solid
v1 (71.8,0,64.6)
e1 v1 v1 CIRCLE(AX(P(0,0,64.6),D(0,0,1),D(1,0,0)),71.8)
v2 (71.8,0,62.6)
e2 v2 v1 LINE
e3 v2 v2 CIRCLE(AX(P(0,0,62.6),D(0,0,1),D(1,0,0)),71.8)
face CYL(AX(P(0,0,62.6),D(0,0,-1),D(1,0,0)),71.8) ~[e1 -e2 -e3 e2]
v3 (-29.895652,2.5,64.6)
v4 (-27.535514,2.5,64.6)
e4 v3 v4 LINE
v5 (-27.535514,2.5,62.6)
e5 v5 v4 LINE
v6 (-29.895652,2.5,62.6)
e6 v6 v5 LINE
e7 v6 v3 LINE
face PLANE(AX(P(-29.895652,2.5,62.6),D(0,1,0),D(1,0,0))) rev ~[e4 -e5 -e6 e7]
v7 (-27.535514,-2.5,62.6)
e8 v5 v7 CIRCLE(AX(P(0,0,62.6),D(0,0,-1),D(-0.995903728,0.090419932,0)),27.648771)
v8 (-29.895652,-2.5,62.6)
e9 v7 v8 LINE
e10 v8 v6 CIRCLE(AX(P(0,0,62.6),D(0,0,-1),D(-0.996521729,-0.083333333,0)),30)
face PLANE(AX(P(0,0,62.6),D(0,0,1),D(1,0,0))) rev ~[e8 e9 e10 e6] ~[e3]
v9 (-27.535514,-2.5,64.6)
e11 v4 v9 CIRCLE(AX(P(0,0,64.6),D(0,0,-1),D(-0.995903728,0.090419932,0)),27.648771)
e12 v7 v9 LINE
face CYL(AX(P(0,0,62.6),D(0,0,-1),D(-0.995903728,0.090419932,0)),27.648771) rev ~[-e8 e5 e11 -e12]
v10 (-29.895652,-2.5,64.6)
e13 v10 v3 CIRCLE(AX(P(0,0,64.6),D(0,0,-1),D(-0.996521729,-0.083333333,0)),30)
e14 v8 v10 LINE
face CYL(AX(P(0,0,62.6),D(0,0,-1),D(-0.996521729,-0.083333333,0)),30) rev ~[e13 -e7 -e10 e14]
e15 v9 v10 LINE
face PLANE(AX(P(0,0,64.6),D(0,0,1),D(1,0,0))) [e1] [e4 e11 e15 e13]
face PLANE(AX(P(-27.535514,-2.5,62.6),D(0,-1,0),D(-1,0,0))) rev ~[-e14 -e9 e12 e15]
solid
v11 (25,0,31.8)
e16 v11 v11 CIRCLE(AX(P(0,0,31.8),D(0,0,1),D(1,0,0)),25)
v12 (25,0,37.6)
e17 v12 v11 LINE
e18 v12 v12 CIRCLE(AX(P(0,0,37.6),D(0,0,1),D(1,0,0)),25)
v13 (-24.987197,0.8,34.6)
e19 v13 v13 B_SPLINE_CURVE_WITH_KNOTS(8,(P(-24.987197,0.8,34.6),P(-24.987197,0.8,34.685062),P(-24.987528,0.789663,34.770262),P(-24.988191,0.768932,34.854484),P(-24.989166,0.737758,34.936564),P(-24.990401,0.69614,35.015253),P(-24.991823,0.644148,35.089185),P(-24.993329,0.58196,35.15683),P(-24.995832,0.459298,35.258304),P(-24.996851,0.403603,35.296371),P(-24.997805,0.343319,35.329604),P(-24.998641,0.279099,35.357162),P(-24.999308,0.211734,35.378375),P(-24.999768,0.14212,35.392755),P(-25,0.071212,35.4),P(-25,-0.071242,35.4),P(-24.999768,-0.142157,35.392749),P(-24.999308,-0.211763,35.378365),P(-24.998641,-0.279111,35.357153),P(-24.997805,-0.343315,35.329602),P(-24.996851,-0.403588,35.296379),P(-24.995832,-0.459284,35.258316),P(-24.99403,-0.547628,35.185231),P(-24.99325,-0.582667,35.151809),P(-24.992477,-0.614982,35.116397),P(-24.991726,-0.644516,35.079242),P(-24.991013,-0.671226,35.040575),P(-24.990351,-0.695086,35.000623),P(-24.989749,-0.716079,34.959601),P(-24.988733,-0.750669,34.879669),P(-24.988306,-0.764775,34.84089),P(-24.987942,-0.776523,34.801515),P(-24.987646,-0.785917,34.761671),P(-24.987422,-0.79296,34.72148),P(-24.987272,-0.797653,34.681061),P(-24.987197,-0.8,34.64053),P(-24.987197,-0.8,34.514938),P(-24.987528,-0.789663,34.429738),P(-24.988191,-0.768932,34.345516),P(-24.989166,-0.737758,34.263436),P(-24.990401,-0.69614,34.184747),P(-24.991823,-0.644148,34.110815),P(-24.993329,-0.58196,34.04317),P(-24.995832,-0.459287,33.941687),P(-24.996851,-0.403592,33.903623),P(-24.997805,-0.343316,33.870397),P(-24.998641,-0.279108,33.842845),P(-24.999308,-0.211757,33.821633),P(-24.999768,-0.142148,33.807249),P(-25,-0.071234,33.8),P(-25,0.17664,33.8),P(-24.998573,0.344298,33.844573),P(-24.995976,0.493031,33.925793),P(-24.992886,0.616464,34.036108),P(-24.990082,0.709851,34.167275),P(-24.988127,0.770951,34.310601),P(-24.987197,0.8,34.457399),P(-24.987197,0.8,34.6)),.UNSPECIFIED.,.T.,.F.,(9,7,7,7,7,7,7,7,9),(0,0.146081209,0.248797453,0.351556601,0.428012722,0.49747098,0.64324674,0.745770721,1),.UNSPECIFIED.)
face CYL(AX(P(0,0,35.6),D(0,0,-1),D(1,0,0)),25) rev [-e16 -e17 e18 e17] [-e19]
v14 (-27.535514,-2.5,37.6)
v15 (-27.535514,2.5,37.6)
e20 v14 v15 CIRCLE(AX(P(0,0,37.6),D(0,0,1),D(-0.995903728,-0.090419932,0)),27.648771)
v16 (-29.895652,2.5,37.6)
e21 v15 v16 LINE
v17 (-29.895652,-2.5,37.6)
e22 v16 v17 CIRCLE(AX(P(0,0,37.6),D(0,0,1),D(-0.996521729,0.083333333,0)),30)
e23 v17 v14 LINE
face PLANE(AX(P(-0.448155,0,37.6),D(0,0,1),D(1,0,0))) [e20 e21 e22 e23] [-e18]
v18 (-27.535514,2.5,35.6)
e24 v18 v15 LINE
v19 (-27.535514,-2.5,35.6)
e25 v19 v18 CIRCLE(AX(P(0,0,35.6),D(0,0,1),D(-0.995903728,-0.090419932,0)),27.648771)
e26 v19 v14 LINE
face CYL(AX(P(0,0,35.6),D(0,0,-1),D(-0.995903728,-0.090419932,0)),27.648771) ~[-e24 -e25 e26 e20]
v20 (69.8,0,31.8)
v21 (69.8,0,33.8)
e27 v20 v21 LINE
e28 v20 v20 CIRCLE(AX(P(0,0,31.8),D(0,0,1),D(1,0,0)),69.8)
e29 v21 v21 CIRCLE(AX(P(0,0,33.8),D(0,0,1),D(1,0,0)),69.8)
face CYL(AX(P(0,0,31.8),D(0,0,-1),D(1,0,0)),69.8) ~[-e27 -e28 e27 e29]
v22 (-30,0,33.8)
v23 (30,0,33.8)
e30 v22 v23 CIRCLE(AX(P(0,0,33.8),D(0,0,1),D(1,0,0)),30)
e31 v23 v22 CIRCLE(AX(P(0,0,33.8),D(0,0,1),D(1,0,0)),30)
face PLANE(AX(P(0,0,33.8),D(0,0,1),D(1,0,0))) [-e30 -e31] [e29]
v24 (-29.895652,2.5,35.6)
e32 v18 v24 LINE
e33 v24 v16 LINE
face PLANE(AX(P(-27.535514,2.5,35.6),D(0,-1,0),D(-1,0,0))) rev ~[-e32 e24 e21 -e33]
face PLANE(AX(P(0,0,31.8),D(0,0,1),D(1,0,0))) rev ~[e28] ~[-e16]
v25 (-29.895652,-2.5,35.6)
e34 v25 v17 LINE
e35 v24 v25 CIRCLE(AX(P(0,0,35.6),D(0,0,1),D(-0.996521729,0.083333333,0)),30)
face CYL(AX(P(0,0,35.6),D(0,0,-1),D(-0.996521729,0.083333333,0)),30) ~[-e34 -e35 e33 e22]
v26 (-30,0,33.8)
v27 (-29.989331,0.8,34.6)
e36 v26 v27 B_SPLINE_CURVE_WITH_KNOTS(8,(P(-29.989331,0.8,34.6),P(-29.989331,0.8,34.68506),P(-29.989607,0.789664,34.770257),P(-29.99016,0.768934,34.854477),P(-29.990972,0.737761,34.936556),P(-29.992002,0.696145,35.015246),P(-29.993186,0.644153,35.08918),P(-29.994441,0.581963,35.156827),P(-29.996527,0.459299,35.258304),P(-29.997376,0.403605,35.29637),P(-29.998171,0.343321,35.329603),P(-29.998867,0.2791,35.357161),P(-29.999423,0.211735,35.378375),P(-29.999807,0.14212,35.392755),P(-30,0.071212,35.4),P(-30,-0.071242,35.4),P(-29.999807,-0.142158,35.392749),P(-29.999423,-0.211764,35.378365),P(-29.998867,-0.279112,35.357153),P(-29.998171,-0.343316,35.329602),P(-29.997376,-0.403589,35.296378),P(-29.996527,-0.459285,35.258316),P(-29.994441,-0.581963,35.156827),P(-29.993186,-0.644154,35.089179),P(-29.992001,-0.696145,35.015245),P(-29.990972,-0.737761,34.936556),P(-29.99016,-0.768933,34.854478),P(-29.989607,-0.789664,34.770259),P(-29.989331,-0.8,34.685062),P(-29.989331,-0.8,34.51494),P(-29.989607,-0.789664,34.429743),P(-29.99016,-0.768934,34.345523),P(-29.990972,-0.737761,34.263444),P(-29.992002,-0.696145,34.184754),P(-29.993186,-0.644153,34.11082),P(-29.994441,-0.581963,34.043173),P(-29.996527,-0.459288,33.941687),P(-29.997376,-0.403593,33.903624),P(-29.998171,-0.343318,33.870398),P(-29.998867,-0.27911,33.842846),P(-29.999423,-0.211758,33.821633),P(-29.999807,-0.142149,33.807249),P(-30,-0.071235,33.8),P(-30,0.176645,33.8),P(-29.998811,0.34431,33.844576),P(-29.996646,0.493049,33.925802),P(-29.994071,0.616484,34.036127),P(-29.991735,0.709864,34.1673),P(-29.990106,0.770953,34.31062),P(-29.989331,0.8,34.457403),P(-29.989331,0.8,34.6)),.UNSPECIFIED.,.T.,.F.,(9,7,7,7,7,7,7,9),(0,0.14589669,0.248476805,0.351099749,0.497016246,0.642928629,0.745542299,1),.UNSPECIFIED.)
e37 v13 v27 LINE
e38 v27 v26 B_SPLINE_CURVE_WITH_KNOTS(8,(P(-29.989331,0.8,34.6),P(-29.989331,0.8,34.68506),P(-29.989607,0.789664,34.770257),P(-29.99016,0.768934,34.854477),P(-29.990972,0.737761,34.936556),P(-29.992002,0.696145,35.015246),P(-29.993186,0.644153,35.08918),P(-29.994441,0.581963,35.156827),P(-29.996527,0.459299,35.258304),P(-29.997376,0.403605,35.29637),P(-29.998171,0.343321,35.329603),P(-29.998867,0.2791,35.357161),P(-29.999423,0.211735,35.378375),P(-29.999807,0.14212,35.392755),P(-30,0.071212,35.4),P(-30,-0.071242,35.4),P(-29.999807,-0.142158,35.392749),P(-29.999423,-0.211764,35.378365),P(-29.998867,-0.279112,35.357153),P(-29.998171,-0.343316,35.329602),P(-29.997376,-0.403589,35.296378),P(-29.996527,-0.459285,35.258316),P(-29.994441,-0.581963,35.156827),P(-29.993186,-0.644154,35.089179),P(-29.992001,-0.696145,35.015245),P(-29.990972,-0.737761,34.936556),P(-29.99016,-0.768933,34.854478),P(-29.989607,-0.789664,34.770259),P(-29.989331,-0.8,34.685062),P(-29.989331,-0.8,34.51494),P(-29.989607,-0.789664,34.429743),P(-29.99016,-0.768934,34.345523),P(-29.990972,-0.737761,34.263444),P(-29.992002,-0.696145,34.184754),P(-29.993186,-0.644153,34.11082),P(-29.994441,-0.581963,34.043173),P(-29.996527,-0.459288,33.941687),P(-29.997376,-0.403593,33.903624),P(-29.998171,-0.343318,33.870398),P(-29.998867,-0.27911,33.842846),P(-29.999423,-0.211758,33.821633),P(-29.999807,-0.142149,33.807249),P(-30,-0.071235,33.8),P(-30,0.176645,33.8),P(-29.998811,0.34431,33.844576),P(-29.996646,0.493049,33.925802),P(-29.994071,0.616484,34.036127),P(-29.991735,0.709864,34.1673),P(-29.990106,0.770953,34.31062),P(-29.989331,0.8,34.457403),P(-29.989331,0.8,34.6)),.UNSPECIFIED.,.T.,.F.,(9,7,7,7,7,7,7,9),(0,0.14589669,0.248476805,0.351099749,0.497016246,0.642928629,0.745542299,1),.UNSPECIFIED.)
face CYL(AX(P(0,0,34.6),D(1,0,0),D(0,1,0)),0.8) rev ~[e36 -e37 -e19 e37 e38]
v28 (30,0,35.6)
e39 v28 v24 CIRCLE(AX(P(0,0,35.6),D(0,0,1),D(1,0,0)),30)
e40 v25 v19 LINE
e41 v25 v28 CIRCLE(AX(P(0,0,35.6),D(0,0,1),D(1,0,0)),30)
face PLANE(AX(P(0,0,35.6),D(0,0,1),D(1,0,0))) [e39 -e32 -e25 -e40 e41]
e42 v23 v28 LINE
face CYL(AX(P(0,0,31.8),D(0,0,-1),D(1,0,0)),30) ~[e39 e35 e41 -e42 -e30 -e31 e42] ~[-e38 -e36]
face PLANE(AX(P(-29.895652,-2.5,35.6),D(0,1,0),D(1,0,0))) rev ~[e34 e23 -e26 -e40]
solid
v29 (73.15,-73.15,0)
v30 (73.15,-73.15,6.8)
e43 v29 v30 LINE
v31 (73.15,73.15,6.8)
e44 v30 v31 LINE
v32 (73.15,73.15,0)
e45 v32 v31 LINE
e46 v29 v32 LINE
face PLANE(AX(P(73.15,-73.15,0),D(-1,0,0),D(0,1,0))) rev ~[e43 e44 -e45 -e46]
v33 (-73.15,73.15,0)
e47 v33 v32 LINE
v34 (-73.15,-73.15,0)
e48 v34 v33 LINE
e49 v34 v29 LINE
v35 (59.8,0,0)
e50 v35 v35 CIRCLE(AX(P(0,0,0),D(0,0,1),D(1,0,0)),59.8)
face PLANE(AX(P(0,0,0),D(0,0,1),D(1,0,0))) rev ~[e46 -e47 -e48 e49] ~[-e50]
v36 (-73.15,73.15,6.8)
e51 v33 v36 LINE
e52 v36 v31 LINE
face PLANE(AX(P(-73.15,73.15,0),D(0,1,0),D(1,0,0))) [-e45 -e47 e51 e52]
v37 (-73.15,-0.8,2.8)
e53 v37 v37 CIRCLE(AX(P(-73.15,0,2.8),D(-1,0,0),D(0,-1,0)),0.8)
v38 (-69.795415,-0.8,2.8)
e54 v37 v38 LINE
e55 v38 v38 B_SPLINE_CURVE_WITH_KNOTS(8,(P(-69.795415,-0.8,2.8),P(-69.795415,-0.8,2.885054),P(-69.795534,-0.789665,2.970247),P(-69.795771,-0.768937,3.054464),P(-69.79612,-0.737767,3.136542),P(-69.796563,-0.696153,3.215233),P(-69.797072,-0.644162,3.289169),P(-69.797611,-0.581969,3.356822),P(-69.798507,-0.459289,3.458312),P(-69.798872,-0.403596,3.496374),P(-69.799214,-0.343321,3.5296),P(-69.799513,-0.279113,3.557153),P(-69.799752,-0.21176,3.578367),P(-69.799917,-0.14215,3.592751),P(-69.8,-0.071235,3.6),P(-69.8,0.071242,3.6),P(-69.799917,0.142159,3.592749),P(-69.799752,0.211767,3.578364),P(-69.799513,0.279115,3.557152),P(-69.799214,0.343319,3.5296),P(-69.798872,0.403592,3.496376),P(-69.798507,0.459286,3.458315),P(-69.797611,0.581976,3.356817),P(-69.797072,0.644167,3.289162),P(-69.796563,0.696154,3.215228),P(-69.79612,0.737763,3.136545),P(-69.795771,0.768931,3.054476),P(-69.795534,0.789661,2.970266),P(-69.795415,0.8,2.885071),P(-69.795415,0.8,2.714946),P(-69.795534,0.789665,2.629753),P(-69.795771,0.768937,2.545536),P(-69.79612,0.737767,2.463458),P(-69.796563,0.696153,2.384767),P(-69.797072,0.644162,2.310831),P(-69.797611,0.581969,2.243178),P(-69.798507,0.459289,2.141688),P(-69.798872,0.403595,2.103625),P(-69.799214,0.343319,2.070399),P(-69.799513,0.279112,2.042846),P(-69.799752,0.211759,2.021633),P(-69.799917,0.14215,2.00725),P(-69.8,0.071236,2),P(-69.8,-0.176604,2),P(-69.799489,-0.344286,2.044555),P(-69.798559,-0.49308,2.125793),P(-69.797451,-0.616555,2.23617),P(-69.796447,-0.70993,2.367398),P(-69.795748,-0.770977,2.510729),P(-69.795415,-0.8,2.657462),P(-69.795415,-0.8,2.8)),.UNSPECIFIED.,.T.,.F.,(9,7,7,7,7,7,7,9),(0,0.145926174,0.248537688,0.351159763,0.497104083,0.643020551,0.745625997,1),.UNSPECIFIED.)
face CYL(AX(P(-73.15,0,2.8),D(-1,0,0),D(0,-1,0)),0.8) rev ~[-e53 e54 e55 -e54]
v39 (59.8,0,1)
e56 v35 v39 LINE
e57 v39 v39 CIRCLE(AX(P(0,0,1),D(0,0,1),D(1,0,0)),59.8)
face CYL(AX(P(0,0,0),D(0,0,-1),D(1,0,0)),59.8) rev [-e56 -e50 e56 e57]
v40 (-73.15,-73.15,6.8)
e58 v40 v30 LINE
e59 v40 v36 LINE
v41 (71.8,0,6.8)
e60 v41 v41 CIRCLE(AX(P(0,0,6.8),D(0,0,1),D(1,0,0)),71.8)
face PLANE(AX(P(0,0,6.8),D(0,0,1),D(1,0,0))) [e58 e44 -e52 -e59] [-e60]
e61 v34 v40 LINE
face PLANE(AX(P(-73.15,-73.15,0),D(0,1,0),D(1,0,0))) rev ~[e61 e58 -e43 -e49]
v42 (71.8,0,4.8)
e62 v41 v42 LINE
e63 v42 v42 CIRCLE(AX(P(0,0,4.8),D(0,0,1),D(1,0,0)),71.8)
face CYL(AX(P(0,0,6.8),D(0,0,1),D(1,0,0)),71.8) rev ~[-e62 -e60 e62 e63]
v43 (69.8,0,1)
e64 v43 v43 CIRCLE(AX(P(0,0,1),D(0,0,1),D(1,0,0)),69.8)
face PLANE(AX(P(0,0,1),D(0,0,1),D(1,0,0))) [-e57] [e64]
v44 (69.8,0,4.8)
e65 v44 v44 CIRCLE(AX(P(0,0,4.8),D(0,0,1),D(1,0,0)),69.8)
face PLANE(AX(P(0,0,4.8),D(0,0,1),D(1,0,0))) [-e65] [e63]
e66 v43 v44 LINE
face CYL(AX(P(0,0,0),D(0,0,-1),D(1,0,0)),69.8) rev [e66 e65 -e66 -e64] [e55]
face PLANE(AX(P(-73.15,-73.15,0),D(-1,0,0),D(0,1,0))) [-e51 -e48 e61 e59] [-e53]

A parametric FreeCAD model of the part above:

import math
import FreeCAD as App
import Part
import Sketcher
from FreeCAD import Vector
Q = App.Units.Quantity

doc = App.newDocument("Part")
body = doc.addObject("PartDesign::Body", "Body")

# Sketch on XY plane
sketch1 = doc.addObject("Sketcher::SketchObject", "Sketch")
body.addObject(sketch1)
sketch1.AttachmentSupport = (doc.XY_Plane, [""])
sketch1.MapMode = "FlatFace"
sketch1.addGeometry([
    Part.LineSegment(Vector(-73, 73, 0), Vector(-73, -73, 0)),  # 0
    Part.LineSegment(Vector(-73, -73, 0), Vector(73, -73, 0)),  # 1
    Part.LineSegment(Vector(73, -73, 0), Vector(73, 73, 0)),  # 2
    Part.LineSegment(Vector(73, 73, 0), Vector(-73, 73, 0)),  # 3
    Part.Circle(Vector(0, 0, 0), Vector(0, 0, 1), 70),  # 4
], False)
sketch1.addConstraint([
    Sketcher.Constraint("Coincident", 0, 2, 1, 1),
    Sketcher.Constraint("Coincident", 1, 2, 2, 1),
    Sketcher.Constraint("Coincident", 2, 2, 3, 1),
    Sketcher.Constraint("Coincident", 3, 2, 0, 1),
    Sketcher.Constraint("Vertical", 0),
    Sketcher.Constraint("Horizontal", 1),
    Sketcher.Constraint("Vertical", 2),
    Sketcher.Constraint("Horizontal", 3),
    Sketcher.Constraint("Coincident", 4, 3, -1, 1),
    Sketcher.Constraint("Symmetric", 0, 2, 2, 2, -1, 1),
    Sketcher.Constraint("Equal", 3, 0),
    Sketcher.Constraint("Diameter", 4, Q("139.6 mm")),
    Sketcher.Constraint("DistanceX", 1, 1, 1, 2, Q("146.3 mm")),
])
pad1 = doc.addObject("PartDesign::Pad", "Pad")
body.addObject(pad1)
pad1.Profile = sketch1
pad1.Length = 6.8

# Sketch on XY plane
sketch2 = doc.addObject("Sketcher::SketchObject", "Sketch001")
body.addObject(sketch2)
sketch2.AttachmentSupport = (doc.XY_Plane, [""])
sketch2.MapMode = "FlatFace"
sketch2.addGeometry([
    Part.Circle(Vector(0, 0, 0), Vector(0, 0, 1), 70),
    Part.Circle(Vector(0, 0, 0), Vector(0, 0, 1), 60),
], False)
sketch2.addConstraint([
    Sketcher.Constraint("Coincident", 0, 3, -1, 1),
    Sketcher.Constraint("Coincident", 1, 3, -1, 1),
    Sketcher.Constraint("Diameter", 0, Q("139.6 mm")),
    Sketcher.Constraint("Diameter", 1, Q("119.6 mm")),
])
pad2 = doc.addObject("PartDesign::Pad", "Pad001")
body.addObject(pad2)
pad2.Profile = sketch2
pad2.Length = 1

# Sketch on YZ plane
sketch3 = doc.addObject("Sketcher::SketchObject", "Sketch002")
body.addObject(sketch3)
sketch3.AttachmentSupport = (doc.YZ_Plane, [""])
sketch3.MapMode = "FlatFace"
sketch3.AttachmentOffset = App.Placement(Vector(0, 0, -73.15), App.Rotation())
sketch3.addGeometry(Part.Circle(Vector(0, 2.8, 0), Vector(0, 0, 1), 0.8), False)
sketch3.addConstraint([
    Sketcher.Constraint("PointOnObject", 0, 3, -2),
    Sketcher.Constraint("Diameter", 0, Q("1.6 mm")),
    Sketcher.Constraint("DistanceY", -1, 1, 0, 3, Q("2.8 mm")),
])
pocket1 = doc.addObject("PartDesign::Pocket", "Pocket")
body.addObject(pocket1)
pocket1.Profile = sketch3
pocket1.Length = 3.355585
pocket1.Reversed = True

# Sketch on XY plane
sketch4 = doc.addObject("Sketcher::SketchObject", "Sketch003")
body.addObject(sketch4)
sketch4.AttachmentSupport = (doc.XY_Plane, [""])
sketch4.MapMode = "FlatFace"
sketch4.AttachmentOffset = App.Placement(Vector(0, 0, 6.8), App.Rotation())
sketch4.addGeometry([
    Part.Circle(Vector(0, 0, 0), Vector(0, 0, 1), 72),
    Part.Circle(Vector(0, 0, 0), Vector(0, 0, 1), 70),
], False)
sketch4.addConstraint([
    Sketcher.Constraint("Coincident", 0, 3, -1, 1),
    Sketcher.Constraint("Coincident", 1, 3, -1, 1),
    Sketcher.Constraint("Diameter", 0, Q("143.6 mm")),
    Sketcher.Constraint("Diameter", 1, Q("139.6 mm")),
])
pocket2 = doc.addObject("PartDesign::Pocket", "Pocket001")
body.addObject(pocket2)
pocket2.Profile = sketch4
pocket2.Length = 2
body2 = doc.addObject("PartDesign::Body", "Body001")

# Sketch on XY plane
sketch5 = doc.addObject("Sketcher::SketchObject", "Sketch004")
body2.addObject(sketch5)
sketch5.AttachmentSupport = (doc.getObject("XY_Plane001"), [""])
sketch5.MapMode = "FlatFace"
sketch5.AttachmentOffset = App.Placement(Vector(0, 0, 31.8), App.Rotation())
sketch5.addGeometry([
    Part.Circle(Vector(0, 0, 0), Vector(0, 0, 1), 70),
    Part.Circle(Vector(0, 0, 0), Vector(0, 0, 1), 30),
], False)
sketch5.addConstraint([
    Sketcher.Constraint("Coincident", 0, 3, -1, 1),
    Sketcher.Constraint("Coincident", 1, 3, -1, 1),
    Sketcher.Constraint("Diameter", 1, Q("60 mm")),
    Sketcher.Constraint("Diameter", 0, Q("139.6 mm")),
])
pad3 = doc.addObject("PartDesign::Pad", "Pad002")
body2.addObject(pad3)
pad3.Profile = sketch5
pad3.Length = 2

# Sketch on XY plane
sketch6 = doc.addObject("Sketcher::SketchObject", "Sketch005")
body2.addObject(sketch6)
sketch6.AttachmentSupport = (doc.getObject("XY_Plane001"), [""])
sketch6.MapMode = "FlatFace"
sketch6.AttachmentOffset = App.Placement(Vector(0, 0, 31.8), App.Rotation())
sketch6.addGeometry([
    Part.Circle(Vector(0, 0, 0), Vector(0, 0, 1), 30),
    Part.Circle(Vector(0, 0, 0), Vector(0, 0, 1), 25),
], False)
sketch6.addConstraint([
    Sketcher.Constraint("Coincident", 0, 3, -1, 1),
    Sketcher.Constraint("Coincident", 1, 3, -1, 1),
    Sketcher.Constraint("Diameter", 0, Q("60 mm")),
    Sketcher.Constraint("Diameter", 1, Q("50 mm")),
])
pad4 = doc.addObject("PartDesign::Pad", "Pad003")
body2.addObject(pad4)
pad4.Profile = sketch6
pad4.Length = 3.8

# Sketch on XY plane
sketch7 = doc.addObject("Sketcher::SketchObject", "Sketch006")
body2.addObject(sketch7)
sketch7.AttachmentSupport = (doc.getObject("XY_Plane001"), [""])
sketch7.MapMode = "FlatFace"
sketch7.AttachmentOffset = App.Placement(Vector(0, 0, 35.6), App.Rotation())
sketch7.addGeometry([
    Part.ArcOfCircle(Part.Circle(Vector(0, 0, 0), Vector(0, 0, 1), 27.6), math.radians(-175), math.radians(175)),  # 0
    Part.LineSegment(Vector(-27.5, 2.5, 0), Vector(-29.9, 2.5, 0)),  # 1
    Part.ArcOfCircle(Part.Circle(Vector(0, 0, 0), Vector(0, 0, 1), 30), math.radians(175.22), math.radians(184.78)),  # 2
    Part.LineSegment(Vector(-29.9, -2.5, 0), Vector(-27.5, -2.5, 0)),  # 3
    Part.Circle(Vector(0, 0, 0), Vector(0, 0, 1), 25),  # 4
], False)
sketch7.addConstraint([
    Sketcher.Constraint("Coincident", 0, 2, 1, 1),
    Sketcher.Constraint("Coincident", 1, 2, 2, 1),
    Sketcher.Constraint("Coincident", 2, 2, 3, 1),
    Sketcher.Constraint("Coincident", 3, 2, 0, 1),
    Sketcher.Constraint("Horizontal", 1),
    Sketcher.Constraint("Horizontal", 3),
    Sketcher.Constraint("Coincident", 0, 3, -1, 1),
    Sketcher.Constraint("Coincident", 2, 3, -1, 1),
    Sketcher.Constraint("Coincident", 4, 3, -1, 1),
    Sketcher.Constraint("Vertical", 1, 2, 2, 2),
    Sketcher.Constraint("Diameter", 4, Q("50 mm")),
    Sketcher.Constraint("Radius", 2, Q("30 mm")),
    Sketcher.Constraint("DistanceY", 2, 2, 1, 2, Q("5 mm")),
    Sketcher.Constraint("Radius", 0, Q("27.648771 mm")),
])
pad5 = doc.addObject("PartDesign::Pad", "Pad004")
body2.addObject(pad5)
pad5.Profile = sketch7
pad5.Length = 2

# Sketch on YZ plane
sketch8 = doc.addObject("Sketcher::SketchObject", "Sketch007")
body2.addObject(sketch8)
sketch8.AttachmentSupport = (doc.getObject("YZ_Plane001"), [""])
sketch8.MapMode = "FlatFace"
sketch8.addGeometry(Part.Circle(Vector(0, 34.6, 0), Vector(0, 0, 1), 0.8), False)
sketch8.addConstraint([
    Sketcher.Constraint("PointOnObject", 0, 3, -2),
    Sketcher.Constraint("Diameter", 0, Q("1.6 mm")),
    Sketcher.Constraint("DistanceY", -1, 1, 0, 3, Q("34.6 mm")),
])
pocket3 = doc.addObject("PartDesign::Pocket", "Pocket002")
body2.addObject(pocket3)
pocket3.Profile = sketch8
pocket3.Length = 31

# Sketch on XY plane
sketch9 = doc.addObject("Sketcher::SketchObject", "Sketch008")
body2.addObject(sketch9)
sketch9.AttachmentSupport = (doc.getObject("XY_Plane001"), [""])
sketch9.MapMode = "FlatFace"
sketch9.AttachmentOffset = App.Placement(Vector(0, 0, 35.6), App.Rotation())
sketch9.addGeometry([
    Part.ArcOfCircle(Part.Circle(Vector(0, 0, 0), Vector(0, 0, 1), 27.6), math.radians(-175), math.radians(175)),  # 0
    Part.LineSegment(Vector(-27.5, 2.5, 0), Vector(-29.9, 2.5, 0)),  # 1
    Part.ArcOfCircle(Part.Circle(Vector(0, 0, 0), Vector(0, 0, 1), 30), math.radians(175.22), math.radians(184.78)),  # 2
    Part.LineSegment(Vector(-29.9, -2.5, 0), Vector(-27.5, -2.5, 0)),  # 3
    Part.Circle(Vector(0, 0, 0), Vector(0, 0, 1), 25),  # 4
], False)
sketch9.addConstraint([
    Sketcher.Constraint("Coincident", 0, 2, 1, 1),
    Sketcher.Constraint("Coincident", 1, 2, 2, 1),
    Sketcher.Constraint("Coincident", 2, 2, 3, 1),
    Sketcher.Constraint("Coincident", 3, 2, 0, 1),
    Sketcher.Constraint("Horizontal", 1),
    Sketcher.Constraint("Horizontal", 3),
    Sketcher.Constraint("Coincident", 0, 3, -1, 1),
    Sketcher.Constraint("Coincident", 2, 3, -1, 1),
    Sketcher.Constraint("Coincident", 4, 3, -1, 1),
    Sketcher.Constraint("Vertical", 1, 2, 2, 2),
    Sketcher.Constraint("Diameter", 4, Q("50 mm")),
    Sketcher.Constraint("Radius", 2, Q("30 mm")),
    Sketcher.Constraint("DistanceY", 2, 2, 1, 2, Q("5 mm")),
    Sketcher.Constraint("Radius", 0, Q("27.648771 mm")),
])
pad6 = doc.addObject("PartDesign::Pad", "Pad005")
body2.addObject(pad6)
pad6.Profile = sketch9
pad6.Length = 2
body3 = doc.addObject("PartDesign::Body", "Body002")

# Sketch on XY plane
sketch10 = doc.addObject("Sketcher::SketchObject", "Sketch009")
body3.addObject(sketch10)
sketch10.AttachmentSupport = (doc.getObject("XY_Plane002"), [""])
sketch10.MapMode = "FlatFace"
sketch10.AttachmentOffset = App.Placement(Vector(0, 0, 62.6), App.Rotation())
sketch10.addGeometry([
    Part.Circle(Vector(0, 0, 0), Vector(0, 0, 1), 71.8),  # 0
    Part.ArcOfCircle(Part.Circle(Vector(0, 0, 0), Vector(0, 0, 1), 30), math.radians(175.22), math.radians(184.78)),  # 1
    Part.LineSegment(Vector(-29.9, 2.5, 0), Vector(-27.5, 2.5, 0)),  # 2
    Part.ArcOfCircle(Part.Circle(Vector(0, 0, 0), Vector(0, 0, 1), 27.6), math.radians(-175), math.radians(175)),  # 3
    Part.LineSegment(Vector(-27.5, -2.5, 0), Vector(-29.9, -2.5, 0)),  # 4
], False)
sketch10.addConstraint([
    Sketcher.Constraint("Coincident", 1, 1, 2, 1),
    Sketcher.Constraint("Coincident", 2, 2, 3, 2),
    Sketcher.Constraint("Coincident", 3, 1, 4, 1),
    Sketcher.Constraint("Coincident", 4, 2, 1, 2),
    Sketcher.Constraint("Horizontal", 2),
    Sketcher.Constraint("Horizontal", 4),
    Sketcher.Constraint("Coincident", 0, 3, -1, 1),
    Sketcher.Constraint("Coincident", 1, 3, -1, 1),
    Sketcher.Constraint("Coincident", 3, 3, -1, 1),
    Sketcher.Constraint("Vertical", 2, 2, 3, 1),
    Sketcher.Constraint("Radius", 1, Q("30 mm")),
    Sketcher.Constraint("Diameter", 0, Q("143.6 mm")),
    Sketcher.Constraint("DistanceY", 3, 1, 2, 2, Q("5 mm")),
    Sketcher.Constraint("Radius", 3, Q("27.648771 mm")),
])
pad7 = doc.addObject("PartDesign::Pad", "Pad006")
body3.addObject(pad7)
pad7.Profile = sketch10
pad7.Length = 2

doc.recompute()
